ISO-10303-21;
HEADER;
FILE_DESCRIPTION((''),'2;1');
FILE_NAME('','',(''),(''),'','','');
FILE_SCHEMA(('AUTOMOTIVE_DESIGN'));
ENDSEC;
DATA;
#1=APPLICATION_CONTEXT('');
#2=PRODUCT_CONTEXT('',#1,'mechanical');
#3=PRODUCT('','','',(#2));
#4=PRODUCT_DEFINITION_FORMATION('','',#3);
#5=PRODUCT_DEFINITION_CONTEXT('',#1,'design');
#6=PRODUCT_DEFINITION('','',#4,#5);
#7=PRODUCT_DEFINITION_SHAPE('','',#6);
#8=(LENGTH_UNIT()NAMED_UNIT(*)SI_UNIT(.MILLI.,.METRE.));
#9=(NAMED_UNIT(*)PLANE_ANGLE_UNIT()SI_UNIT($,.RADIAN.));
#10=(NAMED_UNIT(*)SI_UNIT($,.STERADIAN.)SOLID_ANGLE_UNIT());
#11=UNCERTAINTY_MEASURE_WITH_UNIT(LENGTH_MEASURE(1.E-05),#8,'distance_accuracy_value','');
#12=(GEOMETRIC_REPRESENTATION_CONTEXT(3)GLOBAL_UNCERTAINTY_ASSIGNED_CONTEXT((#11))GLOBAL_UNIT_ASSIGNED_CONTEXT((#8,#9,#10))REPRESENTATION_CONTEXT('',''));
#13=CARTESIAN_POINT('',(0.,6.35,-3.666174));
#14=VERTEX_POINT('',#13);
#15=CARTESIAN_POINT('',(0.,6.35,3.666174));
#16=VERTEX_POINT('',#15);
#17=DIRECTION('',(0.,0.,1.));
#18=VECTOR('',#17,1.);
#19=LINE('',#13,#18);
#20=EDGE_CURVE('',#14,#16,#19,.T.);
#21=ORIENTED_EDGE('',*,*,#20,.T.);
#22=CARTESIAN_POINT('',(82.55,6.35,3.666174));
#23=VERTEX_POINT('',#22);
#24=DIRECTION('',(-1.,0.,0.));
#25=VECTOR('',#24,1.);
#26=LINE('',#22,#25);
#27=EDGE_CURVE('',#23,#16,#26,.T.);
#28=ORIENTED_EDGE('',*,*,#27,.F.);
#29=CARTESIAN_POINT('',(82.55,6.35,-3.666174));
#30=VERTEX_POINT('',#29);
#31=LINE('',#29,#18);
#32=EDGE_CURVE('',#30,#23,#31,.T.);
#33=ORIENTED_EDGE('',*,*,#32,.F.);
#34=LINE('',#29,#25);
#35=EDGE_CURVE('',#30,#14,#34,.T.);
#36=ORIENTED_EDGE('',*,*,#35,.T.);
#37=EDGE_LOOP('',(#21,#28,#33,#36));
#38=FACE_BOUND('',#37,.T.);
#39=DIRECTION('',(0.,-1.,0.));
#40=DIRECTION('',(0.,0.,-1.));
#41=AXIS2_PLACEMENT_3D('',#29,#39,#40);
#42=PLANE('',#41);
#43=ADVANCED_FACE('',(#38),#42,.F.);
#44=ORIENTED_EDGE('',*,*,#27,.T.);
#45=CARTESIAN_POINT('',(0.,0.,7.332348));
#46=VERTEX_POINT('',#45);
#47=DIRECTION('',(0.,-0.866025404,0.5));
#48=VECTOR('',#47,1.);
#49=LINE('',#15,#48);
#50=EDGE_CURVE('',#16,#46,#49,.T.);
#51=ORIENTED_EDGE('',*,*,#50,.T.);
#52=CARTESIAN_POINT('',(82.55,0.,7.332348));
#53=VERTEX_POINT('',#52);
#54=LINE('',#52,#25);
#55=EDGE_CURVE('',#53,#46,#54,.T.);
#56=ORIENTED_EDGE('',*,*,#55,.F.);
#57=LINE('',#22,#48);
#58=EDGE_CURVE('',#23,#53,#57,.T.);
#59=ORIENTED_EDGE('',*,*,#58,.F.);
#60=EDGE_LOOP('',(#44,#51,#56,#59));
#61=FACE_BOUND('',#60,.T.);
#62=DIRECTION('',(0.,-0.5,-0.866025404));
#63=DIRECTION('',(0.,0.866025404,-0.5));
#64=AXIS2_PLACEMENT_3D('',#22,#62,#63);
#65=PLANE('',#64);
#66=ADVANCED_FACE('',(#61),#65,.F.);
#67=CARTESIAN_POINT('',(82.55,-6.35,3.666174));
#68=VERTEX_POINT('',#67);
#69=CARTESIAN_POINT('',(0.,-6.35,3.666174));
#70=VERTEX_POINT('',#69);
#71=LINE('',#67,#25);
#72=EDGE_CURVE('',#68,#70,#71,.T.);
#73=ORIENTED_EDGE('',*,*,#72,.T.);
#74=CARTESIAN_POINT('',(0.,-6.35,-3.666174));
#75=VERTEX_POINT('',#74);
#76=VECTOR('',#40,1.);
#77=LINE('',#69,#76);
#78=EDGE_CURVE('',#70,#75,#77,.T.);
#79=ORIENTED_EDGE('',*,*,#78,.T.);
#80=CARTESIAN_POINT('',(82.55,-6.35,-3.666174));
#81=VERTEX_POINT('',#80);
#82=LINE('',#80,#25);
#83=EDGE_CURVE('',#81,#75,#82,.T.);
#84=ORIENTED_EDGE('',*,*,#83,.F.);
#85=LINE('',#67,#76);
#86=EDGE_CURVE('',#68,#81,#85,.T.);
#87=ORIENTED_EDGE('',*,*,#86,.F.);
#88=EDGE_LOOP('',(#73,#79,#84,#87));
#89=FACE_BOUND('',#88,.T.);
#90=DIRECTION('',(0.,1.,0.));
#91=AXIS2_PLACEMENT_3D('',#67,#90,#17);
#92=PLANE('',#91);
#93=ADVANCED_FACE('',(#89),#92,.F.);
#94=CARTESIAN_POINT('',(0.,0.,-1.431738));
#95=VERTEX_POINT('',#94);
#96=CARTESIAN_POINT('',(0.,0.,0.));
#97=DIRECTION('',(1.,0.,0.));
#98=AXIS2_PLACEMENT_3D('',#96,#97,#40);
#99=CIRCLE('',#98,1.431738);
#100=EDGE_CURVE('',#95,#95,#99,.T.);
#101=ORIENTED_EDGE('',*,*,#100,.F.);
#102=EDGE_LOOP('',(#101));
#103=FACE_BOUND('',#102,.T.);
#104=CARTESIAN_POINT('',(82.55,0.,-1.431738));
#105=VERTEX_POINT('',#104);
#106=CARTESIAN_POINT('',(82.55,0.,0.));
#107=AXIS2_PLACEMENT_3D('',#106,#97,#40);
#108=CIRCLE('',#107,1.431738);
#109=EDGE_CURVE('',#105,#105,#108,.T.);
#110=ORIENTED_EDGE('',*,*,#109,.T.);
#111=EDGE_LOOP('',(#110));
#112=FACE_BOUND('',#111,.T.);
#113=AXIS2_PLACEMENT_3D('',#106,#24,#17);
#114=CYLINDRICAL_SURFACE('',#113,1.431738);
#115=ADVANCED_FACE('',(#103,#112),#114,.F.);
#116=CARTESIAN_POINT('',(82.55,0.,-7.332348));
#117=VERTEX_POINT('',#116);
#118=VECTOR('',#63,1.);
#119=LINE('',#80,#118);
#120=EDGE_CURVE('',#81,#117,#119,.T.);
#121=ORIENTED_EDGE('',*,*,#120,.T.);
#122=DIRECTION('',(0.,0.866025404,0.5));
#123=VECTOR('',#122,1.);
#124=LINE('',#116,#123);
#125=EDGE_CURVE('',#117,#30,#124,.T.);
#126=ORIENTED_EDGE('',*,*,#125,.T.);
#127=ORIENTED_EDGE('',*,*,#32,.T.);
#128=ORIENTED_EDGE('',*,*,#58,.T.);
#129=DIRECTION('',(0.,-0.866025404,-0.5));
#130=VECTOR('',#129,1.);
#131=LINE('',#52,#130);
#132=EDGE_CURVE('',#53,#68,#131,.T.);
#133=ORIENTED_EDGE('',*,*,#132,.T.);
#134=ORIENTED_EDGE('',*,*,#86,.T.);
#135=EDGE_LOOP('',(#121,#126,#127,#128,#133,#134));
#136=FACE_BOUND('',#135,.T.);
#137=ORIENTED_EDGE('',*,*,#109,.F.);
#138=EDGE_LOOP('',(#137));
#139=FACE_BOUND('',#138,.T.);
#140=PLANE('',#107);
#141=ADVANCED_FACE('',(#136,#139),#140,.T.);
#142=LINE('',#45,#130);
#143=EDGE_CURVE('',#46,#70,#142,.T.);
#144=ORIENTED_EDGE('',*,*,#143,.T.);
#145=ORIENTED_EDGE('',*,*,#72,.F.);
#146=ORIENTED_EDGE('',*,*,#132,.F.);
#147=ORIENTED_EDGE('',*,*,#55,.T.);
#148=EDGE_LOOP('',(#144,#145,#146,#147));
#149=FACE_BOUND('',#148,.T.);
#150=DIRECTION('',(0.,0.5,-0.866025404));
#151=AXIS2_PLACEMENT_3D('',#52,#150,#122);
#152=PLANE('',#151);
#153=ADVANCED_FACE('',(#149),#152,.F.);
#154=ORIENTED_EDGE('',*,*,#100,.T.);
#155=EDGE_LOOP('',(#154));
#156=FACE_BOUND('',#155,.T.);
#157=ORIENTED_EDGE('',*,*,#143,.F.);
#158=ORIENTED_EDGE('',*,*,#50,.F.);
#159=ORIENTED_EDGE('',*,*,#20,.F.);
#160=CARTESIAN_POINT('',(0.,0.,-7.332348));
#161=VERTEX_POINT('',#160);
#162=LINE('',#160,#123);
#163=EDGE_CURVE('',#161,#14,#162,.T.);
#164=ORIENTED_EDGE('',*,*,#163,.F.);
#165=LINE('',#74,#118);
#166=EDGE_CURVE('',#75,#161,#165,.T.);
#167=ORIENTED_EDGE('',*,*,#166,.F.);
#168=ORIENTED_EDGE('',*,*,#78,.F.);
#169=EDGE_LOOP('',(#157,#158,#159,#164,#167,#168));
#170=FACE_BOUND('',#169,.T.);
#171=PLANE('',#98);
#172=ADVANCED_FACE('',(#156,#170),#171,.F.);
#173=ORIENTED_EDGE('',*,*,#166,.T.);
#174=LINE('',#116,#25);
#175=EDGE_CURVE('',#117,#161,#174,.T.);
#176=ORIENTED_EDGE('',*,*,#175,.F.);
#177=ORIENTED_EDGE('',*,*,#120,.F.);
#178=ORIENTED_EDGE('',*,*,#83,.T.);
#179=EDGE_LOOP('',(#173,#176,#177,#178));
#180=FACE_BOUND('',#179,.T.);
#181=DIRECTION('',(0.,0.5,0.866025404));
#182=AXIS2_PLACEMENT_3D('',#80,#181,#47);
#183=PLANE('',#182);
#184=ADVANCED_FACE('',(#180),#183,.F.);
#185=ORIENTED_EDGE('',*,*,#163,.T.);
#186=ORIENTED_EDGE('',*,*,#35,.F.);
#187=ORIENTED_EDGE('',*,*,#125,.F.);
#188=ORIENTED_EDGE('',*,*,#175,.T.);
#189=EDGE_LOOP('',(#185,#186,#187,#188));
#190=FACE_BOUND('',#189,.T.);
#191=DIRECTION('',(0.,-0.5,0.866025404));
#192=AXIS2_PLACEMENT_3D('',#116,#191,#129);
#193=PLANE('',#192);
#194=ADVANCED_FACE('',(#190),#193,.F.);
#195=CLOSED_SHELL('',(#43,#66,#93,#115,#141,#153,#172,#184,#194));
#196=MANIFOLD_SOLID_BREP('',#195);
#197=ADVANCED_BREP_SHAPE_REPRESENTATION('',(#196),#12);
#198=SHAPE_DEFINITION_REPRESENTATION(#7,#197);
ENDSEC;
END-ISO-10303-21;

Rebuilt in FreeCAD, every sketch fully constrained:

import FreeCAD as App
import Part
import Sketcher

V = App.Vector
Q = App.Units.Quantity

doc = App.newDocument("Part")
params = doc.addObject("Spreadsheet::Sheet", "Params")
for row, (alias, value) in enumerate([
    ("pad1_length", "3.25 in"),
], start=1):
    params.set(f"A{row}", alias)
    params.set(f"B{row}", "=" + value)
    params.setAlias(f"B{row}", alias)

body = doc.addObject("PartDesign::Body", "Body")

sketch1 = body.newObject("Sketcher::SketchObject", "Sketch")
sketch1.AttachmentSupport = (doc.getObject("YZ_Plane"), [""])
sketch1.MapMode = "FlatFace"
sketch1.addGeometry(Part.LineSegment(V(-6.35, -3.666174, 0), V(0, -7.332348, 0)), False)
sketch1.addGeometry(Part.LineSegment(V(0, -7.332348, 0), V(6.35, -3.666174, 0)), False)
sketch1.addGeometry(Part.LineSegment(V(6.35, -3.666174, 0), V(6.35, 3.666174, 0)), False)
sketch1.addGeometry(Part.LineSegment(V(6.35, 3.666174, 0), V(0, 7.332348, 0)), False)
sketch1.addGeometry(Part.LineSegment(V(0, 7.332348, 0), V(-6.35, 3.666174, 0)), False)
sketch1.addGeometry(Part.LineSegment(V(-6.35, 3.666174, 0), V(-6.35, -3.666174, 0)), False)
sketch1.addGeometry(Part.Circle(V(0, 0, 0), V(0, 0, 1), 1.431738), False)
sketch1.addConstraint(Sketcher.Constraint("Coincident", 0, 2, 1, 1))
sketch1.addConstraint(Sketcher.Constraint("Coincident", 1, 2, 2, 1))
sketch1.addConstraint(Sketcher.Constraint("Coincident", 2, 2, 3, 1))
sketch1.addConstraint(Sketcher.Constraint("Coincident", 3, 2, 4, 1))
sketch1.addConstraint(Sketcher.Constraint("Coincident", 4, 2, 5, 1))
sketch1.addConstraint(Sketcher.Constraint("Coincident", 5, 2, 0, 1))
sketch1.addConstraint(Sketcher.Constraint("Vertical", 2))
sketch1.addConstraint(Sketcher.Constraint("Vertical", 5))
sketch1.addConstraint(Sketcher.Constraint("Coincident", 6, 3, -1, 1))
sketch1.addConstraint(Sketcher.Constraint("Symmetric", 0, 2, 3, 2, -1, 1))
sketch1.addConstraint(Sketcher.Constraint("Symmetric", 1, 2, 4, 2, -1, 1))
sketch1.addConstraint(Sketcher.Constraint("PointOnObject", 0, 2, -2))
sketch1.addConstraint(Sketcher.Constraint("Parallel", 0, 3))
sketch1.addConstraint(Sketcher.Constraint("Horizontal", 2, 2, 4, 2))
sketch1.addConstraint(Sketcher.Constraint("Angle", 0, Q("-30 deg")))
sketch1.addConstraint(Sketcher.Constraint("DistanceX", 4, 2, 2, 2, Q("0.5 in")))
sketch1.addConstraint(Sketcher.Constraint("Diameter", 6, Q("2.863476 mm")))
sketch1.addConstraint(Sketcher.Constraint("DistanceY", 2, 1, 2, 2, Q("7.332348 mm")))
pad1 = body.newObject("PartDesign::Pad", "Pad")
pad1.Profile = sketch1
pad1.setExpression("Length", "Params.pad1_length")

doc.recompute()
